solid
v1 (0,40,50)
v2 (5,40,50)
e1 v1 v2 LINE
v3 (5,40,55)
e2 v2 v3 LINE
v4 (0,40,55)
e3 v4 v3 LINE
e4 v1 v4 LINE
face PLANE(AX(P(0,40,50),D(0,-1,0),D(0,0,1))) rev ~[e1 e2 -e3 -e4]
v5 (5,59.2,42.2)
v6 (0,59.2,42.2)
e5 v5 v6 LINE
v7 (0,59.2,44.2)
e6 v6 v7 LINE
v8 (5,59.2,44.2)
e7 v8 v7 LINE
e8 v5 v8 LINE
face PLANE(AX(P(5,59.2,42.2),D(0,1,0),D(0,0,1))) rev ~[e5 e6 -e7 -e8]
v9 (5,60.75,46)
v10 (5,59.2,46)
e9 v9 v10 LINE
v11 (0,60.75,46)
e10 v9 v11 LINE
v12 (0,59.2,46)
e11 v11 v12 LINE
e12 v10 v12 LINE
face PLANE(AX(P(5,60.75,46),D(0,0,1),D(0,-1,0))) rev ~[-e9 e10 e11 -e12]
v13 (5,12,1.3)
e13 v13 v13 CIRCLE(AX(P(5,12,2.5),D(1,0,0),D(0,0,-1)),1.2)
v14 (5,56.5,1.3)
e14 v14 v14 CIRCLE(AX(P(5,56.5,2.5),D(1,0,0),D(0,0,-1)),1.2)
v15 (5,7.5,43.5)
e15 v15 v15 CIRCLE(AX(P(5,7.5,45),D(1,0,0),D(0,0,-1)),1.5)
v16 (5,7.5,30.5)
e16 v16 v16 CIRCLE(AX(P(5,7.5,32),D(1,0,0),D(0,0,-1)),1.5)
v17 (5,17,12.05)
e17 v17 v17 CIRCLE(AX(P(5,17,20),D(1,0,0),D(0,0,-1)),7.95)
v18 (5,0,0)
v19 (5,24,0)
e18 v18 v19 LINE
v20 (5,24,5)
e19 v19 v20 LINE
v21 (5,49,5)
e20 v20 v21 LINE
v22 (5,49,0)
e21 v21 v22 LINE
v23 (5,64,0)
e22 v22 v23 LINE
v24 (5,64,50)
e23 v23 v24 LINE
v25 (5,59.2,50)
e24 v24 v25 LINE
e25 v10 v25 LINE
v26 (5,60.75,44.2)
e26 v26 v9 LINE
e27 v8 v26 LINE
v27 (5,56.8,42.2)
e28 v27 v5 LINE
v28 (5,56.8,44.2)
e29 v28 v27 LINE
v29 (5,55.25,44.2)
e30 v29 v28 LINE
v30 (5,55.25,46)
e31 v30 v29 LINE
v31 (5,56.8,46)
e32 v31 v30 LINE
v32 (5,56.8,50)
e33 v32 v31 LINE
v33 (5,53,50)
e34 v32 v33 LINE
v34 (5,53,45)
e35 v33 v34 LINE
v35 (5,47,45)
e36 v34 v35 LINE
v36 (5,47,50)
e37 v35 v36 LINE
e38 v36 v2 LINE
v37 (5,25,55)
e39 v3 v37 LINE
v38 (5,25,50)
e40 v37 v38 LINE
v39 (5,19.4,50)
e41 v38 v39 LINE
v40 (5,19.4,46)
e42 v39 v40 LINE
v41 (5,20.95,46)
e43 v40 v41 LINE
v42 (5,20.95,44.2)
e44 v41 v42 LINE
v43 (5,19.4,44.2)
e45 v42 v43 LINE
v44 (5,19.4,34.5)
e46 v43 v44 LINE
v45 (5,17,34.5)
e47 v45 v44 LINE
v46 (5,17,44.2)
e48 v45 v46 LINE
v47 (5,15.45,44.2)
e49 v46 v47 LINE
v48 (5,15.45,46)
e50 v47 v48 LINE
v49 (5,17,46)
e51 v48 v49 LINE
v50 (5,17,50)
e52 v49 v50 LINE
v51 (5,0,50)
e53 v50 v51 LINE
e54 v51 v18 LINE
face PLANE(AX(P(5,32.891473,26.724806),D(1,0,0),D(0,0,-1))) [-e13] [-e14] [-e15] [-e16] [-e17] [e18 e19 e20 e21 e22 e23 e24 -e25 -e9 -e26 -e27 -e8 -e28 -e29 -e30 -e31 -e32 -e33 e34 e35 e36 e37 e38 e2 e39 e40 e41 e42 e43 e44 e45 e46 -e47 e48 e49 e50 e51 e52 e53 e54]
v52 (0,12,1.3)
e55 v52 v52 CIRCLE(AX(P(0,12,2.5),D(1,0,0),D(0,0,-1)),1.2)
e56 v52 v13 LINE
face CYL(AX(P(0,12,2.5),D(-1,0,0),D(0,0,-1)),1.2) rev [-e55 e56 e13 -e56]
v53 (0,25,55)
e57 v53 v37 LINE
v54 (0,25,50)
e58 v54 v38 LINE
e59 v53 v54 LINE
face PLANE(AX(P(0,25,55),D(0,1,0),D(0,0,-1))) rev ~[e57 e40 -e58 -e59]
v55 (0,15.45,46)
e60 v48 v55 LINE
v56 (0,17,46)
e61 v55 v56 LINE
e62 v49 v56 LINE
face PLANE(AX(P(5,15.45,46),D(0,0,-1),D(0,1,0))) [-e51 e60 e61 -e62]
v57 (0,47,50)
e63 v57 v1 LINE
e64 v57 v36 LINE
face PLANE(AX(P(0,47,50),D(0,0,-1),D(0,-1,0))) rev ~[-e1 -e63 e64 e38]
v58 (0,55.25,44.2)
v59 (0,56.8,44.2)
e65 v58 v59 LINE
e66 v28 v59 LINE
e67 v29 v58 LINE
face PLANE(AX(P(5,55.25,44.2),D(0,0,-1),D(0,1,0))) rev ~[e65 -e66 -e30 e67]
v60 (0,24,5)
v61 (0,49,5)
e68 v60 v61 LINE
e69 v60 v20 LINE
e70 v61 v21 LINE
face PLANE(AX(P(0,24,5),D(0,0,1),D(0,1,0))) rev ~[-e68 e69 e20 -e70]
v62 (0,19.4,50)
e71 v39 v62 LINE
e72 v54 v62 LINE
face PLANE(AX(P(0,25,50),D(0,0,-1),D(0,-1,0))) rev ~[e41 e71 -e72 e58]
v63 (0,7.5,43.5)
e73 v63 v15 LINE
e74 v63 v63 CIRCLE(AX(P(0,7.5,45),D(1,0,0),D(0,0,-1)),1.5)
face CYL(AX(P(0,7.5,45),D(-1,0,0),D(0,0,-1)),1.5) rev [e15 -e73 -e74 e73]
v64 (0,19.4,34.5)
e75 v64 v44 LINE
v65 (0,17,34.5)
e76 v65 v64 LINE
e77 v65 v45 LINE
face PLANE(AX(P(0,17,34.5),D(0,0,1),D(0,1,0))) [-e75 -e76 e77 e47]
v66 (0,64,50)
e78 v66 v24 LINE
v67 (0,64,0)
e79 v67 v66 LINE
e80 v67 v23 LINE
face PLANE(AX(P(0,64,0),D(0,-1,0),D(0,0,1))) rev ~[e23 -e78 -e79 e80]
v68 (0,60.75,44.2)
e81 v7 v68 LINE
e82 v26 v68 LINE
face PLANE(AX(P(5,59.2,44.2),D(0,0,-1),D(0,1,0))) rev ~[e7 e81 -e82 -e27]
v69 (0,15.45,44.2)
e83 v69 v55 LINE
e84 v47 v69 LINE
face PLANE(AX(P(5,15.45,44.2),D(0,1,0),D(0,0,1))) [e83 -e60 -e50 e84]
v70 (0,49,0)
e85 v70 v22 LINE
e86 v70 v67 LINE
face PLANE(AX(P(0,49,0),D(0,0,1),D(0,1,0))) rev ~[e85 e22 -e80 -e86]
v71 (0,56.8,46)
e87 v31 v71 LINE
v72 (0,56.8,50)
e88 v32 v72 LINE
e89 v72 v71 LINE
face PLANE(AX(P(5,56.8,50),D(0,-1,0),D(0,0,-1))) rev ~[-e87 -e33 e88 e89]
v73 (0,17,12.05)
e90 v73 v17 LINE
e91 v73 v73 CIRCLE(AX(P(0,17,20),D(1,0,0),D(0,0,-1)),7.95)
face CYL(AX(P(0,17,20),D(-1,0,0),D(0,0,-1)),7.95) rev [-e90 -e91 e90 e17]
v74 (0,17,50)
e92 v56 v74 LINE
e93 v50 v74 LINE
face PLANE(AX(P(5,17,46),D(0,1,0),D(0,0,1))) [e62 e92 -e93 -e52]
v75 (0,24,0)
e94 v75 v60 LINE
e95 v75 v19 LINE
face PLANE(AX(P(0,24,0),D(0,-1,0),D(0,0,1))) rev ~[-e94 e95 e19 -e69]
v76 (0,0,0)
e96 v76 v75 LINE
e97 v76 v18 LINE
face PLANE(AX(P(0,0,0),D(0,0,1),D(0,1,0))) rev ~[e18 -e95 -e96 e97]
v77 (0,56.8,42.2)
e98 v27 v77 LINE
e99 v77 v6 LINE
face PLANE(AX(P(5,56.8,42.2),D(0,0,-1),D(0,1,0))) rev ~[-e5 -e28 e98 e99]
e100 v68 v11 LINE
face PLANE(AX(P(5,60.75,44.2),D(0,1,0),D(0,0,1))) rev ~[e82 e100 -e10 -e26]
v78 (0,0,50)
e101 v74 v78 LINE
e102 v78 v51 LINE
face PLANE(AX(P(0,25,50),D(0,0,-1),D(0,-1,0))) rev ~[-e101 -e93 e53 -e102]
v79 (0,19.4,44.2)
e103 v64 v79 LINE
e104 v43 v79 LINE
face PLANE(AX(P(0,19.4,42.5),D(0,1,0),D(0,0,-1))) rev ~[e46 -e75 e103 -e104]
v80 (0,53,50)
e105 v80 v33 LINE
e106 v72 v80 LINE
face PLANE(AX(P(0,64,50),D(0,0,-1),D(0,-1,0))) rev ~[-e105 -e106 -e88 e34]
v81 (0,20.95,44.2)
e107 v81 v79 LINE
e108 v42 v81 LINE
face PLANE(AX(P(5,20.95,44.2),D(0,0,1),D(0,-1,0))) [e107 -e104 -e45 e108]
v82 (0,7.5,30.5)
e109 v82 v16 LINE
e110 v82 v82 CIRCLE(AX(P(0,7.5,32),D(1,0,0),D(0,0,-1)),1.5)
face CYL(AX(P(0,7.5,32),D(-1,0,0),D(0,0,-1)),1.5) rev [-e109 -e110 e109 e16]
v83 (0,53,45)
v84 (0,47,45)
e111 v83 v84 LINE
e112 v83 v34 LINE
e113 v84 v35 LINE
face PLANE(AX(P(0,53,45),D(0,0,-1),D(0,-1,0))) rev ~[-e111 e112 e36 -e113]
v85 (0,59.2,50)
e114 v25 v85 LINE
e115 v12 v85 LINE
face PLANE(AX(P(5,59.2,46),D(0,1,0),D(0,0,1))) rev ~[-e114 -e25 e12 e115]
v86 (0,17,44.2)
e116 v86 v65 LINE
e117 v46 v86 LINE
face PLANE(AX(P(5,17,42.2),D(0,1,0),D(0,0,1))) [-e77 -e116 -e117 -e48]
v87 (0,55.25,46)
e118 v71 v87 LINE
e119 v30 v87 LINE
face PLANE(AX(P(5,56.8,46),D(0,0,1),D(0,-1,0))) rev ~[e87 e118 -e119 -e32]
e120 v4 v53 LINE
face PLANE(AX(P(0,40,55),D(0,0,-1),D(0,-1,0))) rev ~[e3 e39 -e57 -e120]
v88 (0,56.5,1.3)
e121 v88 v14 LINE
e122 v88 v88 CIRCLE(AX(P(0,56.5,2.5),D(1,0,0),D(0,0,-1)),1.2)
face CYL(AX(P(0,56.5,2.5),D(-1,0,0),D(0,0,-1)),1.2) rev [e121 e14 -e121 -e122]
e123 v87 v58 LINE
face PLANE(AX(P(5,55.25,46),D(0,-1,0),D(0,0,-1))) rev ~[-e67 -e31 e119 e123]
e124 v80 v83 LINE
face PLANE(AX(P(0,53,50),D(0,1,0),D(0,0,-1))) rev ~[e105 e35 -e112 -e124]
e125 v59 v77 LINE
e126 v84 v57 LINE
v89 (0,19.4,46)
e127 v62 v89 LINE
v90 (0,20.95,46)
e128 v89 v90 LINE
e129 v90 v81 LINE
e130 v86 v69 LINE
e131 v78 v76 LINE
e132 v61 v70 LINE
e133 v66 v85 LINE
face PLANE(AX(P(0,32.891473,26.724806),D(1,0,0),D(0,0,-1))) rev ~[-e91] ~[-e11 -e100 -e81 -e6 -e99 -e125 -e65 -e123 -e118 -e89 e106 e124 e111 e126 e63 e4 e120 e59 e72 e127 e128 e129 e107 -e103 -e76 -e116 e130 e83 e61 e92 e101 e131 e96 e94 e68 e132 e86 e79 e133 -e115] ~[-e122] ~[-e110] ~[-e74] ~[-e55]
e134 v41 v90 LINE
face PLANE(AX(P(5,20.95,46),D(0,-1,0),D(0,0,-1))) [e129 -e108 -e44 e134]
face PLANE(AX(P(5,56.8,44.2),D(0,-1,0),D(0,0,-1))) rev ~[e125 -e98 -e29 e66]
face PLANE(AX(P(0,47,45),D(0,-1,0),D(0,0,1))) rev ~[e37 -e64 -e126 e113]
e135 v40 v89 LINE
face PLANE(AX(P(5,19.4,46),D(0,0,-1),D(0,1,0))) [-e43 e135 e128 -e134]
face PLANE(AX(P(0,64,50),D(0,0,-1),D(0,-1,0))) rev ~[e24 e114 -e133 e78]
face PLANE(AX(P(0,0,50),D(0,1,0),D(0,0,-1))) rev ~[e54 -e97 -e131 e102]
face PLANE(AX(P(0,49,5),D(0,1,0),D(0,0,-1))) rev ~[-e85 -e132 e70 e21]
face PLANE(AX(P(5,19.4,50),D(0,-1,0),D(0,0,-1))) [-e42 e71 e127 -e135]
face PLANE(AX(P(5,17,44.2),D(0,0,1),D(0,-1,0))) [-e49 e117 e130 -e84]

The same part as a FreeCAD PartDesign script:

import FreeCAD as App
import Part
import Sketcher
from FreeCAD import Vector
Q = App.Units.Quantity

doc = App.newDocument("Part")
body = doc.addObject("PartDesign::Body", "Body")

# Sketch on YZ plane
sketch1 = body.newObject("Sketcher::SketchObject", "Sketch")
sketch1.AttachmentSupport = (doc.getObject("YZ_Plane"), [""])
sketch1.MapMode = "FlatFace"
sketch1.addGeometry([
    Part.LineSegment(Vector(0, 50, 0), Vector(0, 0, 0)),  # 0
    Part.LineSegment(Vector(0, 0, 0), Vector(24, 0, 0)),  # 1
    Part.LineSegment(Vector(24, 0, 0), Vector(24, 5, 0)),  # 2
    Part.LineSegment(Vector(24, 5, 0), Vector(49, 5, 0)),  # 3
    Part.LineSegment(Vector(49, 5, 0), Vector(49, 0, 0)),  # 4
    Part.LineSegment(Vector(49, 0, 0), Vector(64, 0, 0)),  # 5
    Part.LineSegment(Vector(64, 0, 0), Vector(64, 50, 0)),  # 6
    Part.LineSegment(Vector(64, 50, 0), Vector(53, 50, 0)),  # 7
    Part.LineSegment(Vector(53, 50, 0), Vector(53, 45, 0)),  # 8
    Part.LineSegment(Vector(53, 45, 0), Vector(47, 45, 0)),  # 9
    Part.LineSegment(Vector(47, 45, 0), Vector(47, 50, 0)),  # 10
    Part.LineSegment(Vector(47, 50, 0), Vector(40, 50, 0)),  # 11
    Part.LineSegment(Vector(40, 50, 0), Vector(40, 55, 0)),  # 12
    Part.LineSegment(Vector(40, 55, 0), Vector(25, 55, 0)),  # 13
    Part.LineSegment(Vector(25, 55, 0), Vector(25, 50, 0)),  # 14
    Part.LineSegment(Vector(25, 50, 0), Vector(0, 50, 0)),  # 15
    Part.Circle(Vector(7.5, 45, 0), Vector(0, 0, 1), 1.5),  # 16
    Part.LineSegment(Vector(17, 34.5, 0), Vector(17, 42.5, 0)),  # 17
    Part.LineSegment(Vector(17, 42.5, 0), Vector(19.4, 42.5, 0)),  # 18
    Part.LineSegment(Vector(19.4, 42.5, 0), Vector(19.4, 34.5, 0)),  # 19
    Part.LineSegment(Vector(19.4, 34.5, 0), Vector(17, 34.5, 0)),  # 20
    Part.Circle(Vector(7.5, 32, 0), Vector(0, 0, 1), 1.5),  # 21
    Part.Circle(Vector(17, 20, 0), Vector(0, 0, 1), 8),  # 22
    Part.Circle(Vector(12, 2.5, 0), Vector(0, 0, 1), 1.2),  # 23
    Part.Circle(Vector(56.5, 2.5, 0), Vector(0, 0, 1), 1.2),  # 24
], False)
sketch1.addConstraint([
    Sketcher.Constraint("Coincident", 0, 2, 1, 1),
    Sketcher.Constraint("Coincident", 1, 2, 2, 1),
    Sketcher.Constraint("Coincident", 2, 2, 3, 1),
    Sketcher.Constraint("Coincident", 3, 2, 4, 1),
    Sketcher.Constraint("Coincident", 4, 2, 5, 1),
    Sketcher.Constraint("Coincident", 5, 2, 6, 1),
    Sketcher.Constraint("Coincident", 6, 2, 7, 1),
    Sketcher.Constraint("Coincident", 7, 2, 8, 1),
    Sketcher.Constraint("Coincident", 8, 2, 9, 1),
    Sketcher.Constraint("Coincident", 9, 2, 10, 1),
    Sketcher.Constraint("Coincident", 10, 2, 11, 1),
    Sketcher.Constraint("Coincident", 11, 2, 12, 1),
    Sketcher.Constraint("Coincident", 12, 2, 13, 1),
    Sketcher.Constraint("Coincident", 13, 2, 14, 1),
    Sketcher.Constraint("Coincident", 14, 2, 15, 1),
    Sketcher.Constraint("Coincident", 15, 2, 0, 1),
    Sketcher.Constraint("Coincident", 17, 2, 18, 1),
    Sketcher.Constraint("Coincident", 18, 2, 19, 1),
    Sketcher.Constraint("Coincident", 19, 2, 20, 1),
    Sketcher.Constraint("Coincident", 20, 2, 17, 1),
    Sketcher.Constraint("Vertical", 0),
    Sketcher.Constraint("Horizontal", 1),
    Sketcher.Constraint("Vertical", 2),
    Sketcher.Constraint("Horizontal", 3),
    Sketcher.Constraint("Vertical", 4),
    Sketcher.Constraint("Horizontal", 5),
    Sketcher.Constraint("Vertical", 6),
    Sketcher.Constraint("Horizontal", 7),
    Sketcher.Constraint("Vertical", 8),
    Sketcher.Constraint("Horizontal", 9),
    Sketcher.Constraint("Vertical", 10),
    Sketcher.Constraint("Horizontal", 11),
    Sketcher.Constraint("Vertical", 12),
    Sketcher.Constraint("Horizontal", 13),
    Sketcher.Constraint("Vertical", 14),
    Sketcher.Constraint("Horizontal", 15),
    Sketcher.Constraint("Vertical", 17),
    Sketcher.Constraint("Horizontal", 18),
    Sketcher.Constraint("Vertical", 19),
    Sketcher.Constraint("Horizontal", 20),
    Sketcher.Constraint("Coincident", 0, 2, -1, 1),
    Sketcher.Constraint("Equal", 16, 21),
    Sketcher.Constraint("Equal", 23, 24),
    Sketcher.Constraint("PointOnObject", 4, 2, -1),
    Sketcher.Constraint("Horizontal", 23, 3, 24, 3),
    Sketcher.Constraint("Horizontal", 16, 3, 8, 2),
    Sketcher.Constraint("Horizontal", 7, 2, 10, 2),
    Sketcher.Constraint("Horizontal", 11, 2, 14, 2),
    Sketcher.Constraint("Vertical", 16, 3, 21, 3),
    Sketcher.Constraint("Vertical", 22, 3, 17, 2),
    Sketcher.Constraint("Equal", 5, 13),
    Sketcher.Constraint("Equal", 3, 15),
    Sketcher.Constraint("Equal", 4, 8),
    Sketcher.Constraint("Equal", 10, 12),
    Sketcher.Constraint("Diameter", 16, Q("3 mm")),
    Sketcher.Constraint("Diameter", 22, Q("15.9 mm")),
    Sketcher.Constraint("Diameter", 23, Q("2.4 mm")),
    Sketcher.Constraint("DistanceX", 1, 1, 1, 2, Q("24 mm")),
    Sketcher.Constraint("DistanceX", 3, 1, 3, 2, Q("25 mm")),
    Sketcher.Constraint("DistanceX", 5, 1, 5, 2, Q("15 mm")),
    Sketcher.Constraint("DistanceX", 7, 2, 7, 1, Q("11 mm")),
    Sketcher.Constraint("DistanceX", 9, 2, 9, 1, Q("6 mm")),
    Sketcher.Constraint("DistanceY", 0, 2, 0, 1, Q("50 mm")),
    Sketcher.Constraint("DistanceY", 2, 1, 2, 2, Q("5 mm")),
    Sketcher.Constraint("DistanceY", 17, 1, 17, 2, Q("8 mm")),
    Sketcher.Constraint("DistanceX", 18, 1, 18, 2, Q("2.4 mm")),
    Sketcher.Constraint("DistanceY", -1, 1, 21, 3, Q("32 mm")),
    Sketcher.Constraint("DistanceX", -1, 1, 22, 3, Q("17 mm")),
    Sketcher.Constraint("DistanceY", -1, 1, 22, 3, Q("20 mm")),
    Sketcher.Constraint("DistanceX", -1, 1, 23, 3, Q("12 mm")),
    Sketcher.Constraint("DistanceX", 21, 3, 24, 3, Q("49 mm")),
    Sketcher.Constraint("DistanceX", -1, 1, 16, 3, Q("7.5 mm")),
    Sketcher.Constraint("DistanceY", -1, 1, 23, 3, Q("2.5 mm")),
    Sketcher.Constraint("DistanceY", -1, 1, 17, 2, Q("42.5 mm")),
])
pad1 = body.newObject("PartDesign::Pad", "Pad")
pad1.Profile = sketch1
pad1.Length = 5

# Sketch on YZ plane
sketch2 = body.newObject("Sketcher::SketchObject", "Sketch001")
sketch2.AttachmentSupport = (doc.getObject("YZ_Plane"), [""])
sketch2.MapMode = "FlatFace"
sketch2.AttachmentOffset = App.Placement(Vector(0, 0, 5), App.Rotation())
sketch2.addGeometry([
    Part.LineSegment(Vector(56.8, 50, 0), Vector(56.8, 46, 0)),  # 0
    Part.LineSegment(Vector(56.8, 46, 0), Vector(55.2, 46, 0)),  # 1
    Part.LineSegment(Vector(55.2, 46, 0), Vector(55.2, 44.2, 0)),  # 2
    Part.LineSegment(Vector(55.2, 44.2, 0), Vector(56.8, 44.2, 0)),  # 3
    Part.LineSegment(Vector(56.8, 44.2, 0), Vector(56.8, 42.2, 0)),  # 4
    Part.LineSegment(Vector(56.8, 42.2, 0), Vector(59.2, 42.2, 0)),  # 5
    Part.LineSegment(Vector(59.2, 42.2, 0), Vector(59.2, 44.2, 0)),  # 6
    Part.LineSegment(Vector(59.2, 44.2, 0), Vector(60.8, 44.2, 0)),  # 7
    Part.LineSegment(Vector(60.8, 44.2, 0), Vector(60.8, 46, 0)),  # 8
    Part.LineSegment(Vector(60.8, 46, 0), Vector(59.2, 46, 0)),  # 9
    Part.LineSegment(Vector(59.2, 46, 0), Vector(59.2, 50, 0)),  # 10
    Part.LineSegment(Vector(59.2, 50, 0), Vector(56.8, 50, 0)),  # 11
    Part.LineSegment(Vector(19.4, 42.2, 0), Vector(19.4, 44.2, 0)),  # 12
    Part.LineSegment(Vector(19.4, 44.2, 0), Vector(20.9, 44.2, 0)),  # 13
    Part.LineSegment(Vector(20.9, 44.2, 0), Vector(20.9, 46, 0)),  # 14
    Part.LineSegment(Vector(20.9, 46, 0), Vector(19.4, 46, 0)),  # 15
    Part.LineSegment(Vector(19.4, 46, 0), Vector(19.4, 50, 0)),  # 16
    Part.LineSegment(Vector(19.4, 50, 0), Vector(17, 50, 0)),  # 17
    Part.LineSegment(Vector(17, 50, 0), Vector(17, 46, 0)),  # 18
    Part.LineSegment(Vector(17, 46, 0), Vector(15.4, 46, 0)),  # 19
    Part.LineSegment(Vector(15.4, 46, 0), Vector(15.4, 44.2, 0)),  # 20
    Part.LineSegment(Vector(15.4, 44.2, 0), Vector(17, 44.2, 0)),  # 21
    Part.LineSegment(Vector(17, 44.2, 0), Vector(17, 42.2, 0)),  # 22
    Part.LineSegment(Vector(17, 42.2, 0), Vector(19.4, 42.2, 0)),  # 23
], False)
sketch2.addConstraint([
    Sketcher.Constraint("Coincident", 0, 2, 1, 1),
    Sketcher.Constraint("Coincident", 1, 2, 2, 1),
    Sketcher.Constraint("Coincident", 2, 2, 3, 1),
    Sketcher.Constraint("Coincident", 3, 2, 4, 1),
    Sketcher.Constraint("Coincident", 4, 2, 5, 1),
    Sketcher.Constraint("Coincident", 5, 2, 6, 1),
    Sketcher.Constraint("Coincident", 6, 2, 7, 1),
    Sketcher.Constraint("Coincident", 7, 2, 8, 1),
    Sketcher.Constraint("Coincident", 8, 2, 9, 1),
    Sketcher.Constraint("Coincident", 9, 2, 10, 1),
    Sketcher.Constraint("Coincident", 10, 2, 11, 1),
    Sketcher.Constraint("Coincident", 11, 2, 0, 1),
    Sketcher.Constraint("Coincident", 12, 2, 13, 1),
    Sketcher.Constraint("Coincident", 13, 2, 14, 1),
    Sketcher.Constraint("Coincident", 14, 2, 15, 1),
    Sketcher.Constraint("Coincident", 15, 2, 16, 1),
    Sketcher.Constraint("Coincident", 16, 2, 17, 1),
    Sketcher.Constraint("Coincident", 17, 2, 18, 1),
    Sketcher.Constraint("Coincident", 18, 2, 19, 1),
    Sketcher.Constraint("Coincident", 19, 2, 20, 1),
    Sketcher.Constraint("Coincident", 20, 2, 21, 1),
    Sketcher.Constraint("Coincident", 21, 2, 22, 1),
    Sketcher.Constraint("Coincident", 22, 2, 23, 1),
    Sketcher.Constraint("Coincident", 23, 2, 12, 1),
    Sketcher.Constraint("Vertical", 0),
    Sketcher.Constraint("Horizontal", 1),
    Sketcher.Constraint("Vertical", 2),
    Sketcher.Constraint("Horizontal", 3),
    Sketcher.Constraint("Vertical", 4),
    Sketcher.Constraint("Horizontal", 5),
    Sketcher.Constraint("Vertical", 6),
    Sketcher.Constraint("Horizontal", 7),
    Sketcher.Constraint("Vertical", 8),
    Sketcher.Constraint("Horizontal", 9),
    Sketcher.Constraint("Vertical", 10),
    Sketcher.Constraint("Horizontal", 11),
    Sketcher.Constraint("Vertical", 12),
    Sketcher.Constraint("Horizontal", 13),
    Sketcher.Constraint("Vertical", 14),
    Sketcher.Constraint("Horizontal", 15),
    Sketcher.Constraint("Vertical", 16),
    Sketcher.Constraint("Horizontal", 17),
    Sketcher.Constraint("Vertical", 18),
    Sketcher.Constraint("Horizontal", 19),
    Sketcher.Constraint("Vertical", 20),
    Sketcher.Constraint("Horizontal", 21),
    Sketcher.Constraint("Vertical", 22),
    Sketcher.Constraint("Horizontal", 23),
    Sketcher.Constraint("Horizontal", 3, 2, 6, 2),
    Sketcher.Constraint("Horizontal", 1, 2, 8, 2),
    Sketcher.Constraint("Horizontal", 7, 2, 12, 2),
    Sketcher.Constraint("Horizontal", 9, 2, 14, 2),
    Sketcher.Constraint("Horizontal", 11, 2, 16, 2),
    Sketcher.Constraint("Horizontal", 15, 2, 18, 2),
    Sketcher.Constraint("Horizontal", 13, 2, 20, 2),
    Sketcher.Constraint("Horizontal", 5, 2, 22, 2),
    Sketcher.Constraint("Vertical", 0, 2, 3, 2),
    Sketcher.Constraint("Vertical", 6, 2, 9, 2),
    Sketcher.Constraint("Vertical", 12, 2, 15, 2),
    Sketcher.Constraint("Vertical", 18, 2, 21, 2),
    Sketcher.Constraint("Equal", 3, 7),
    Sketcher.Constraint("Equal", 9, 13),
    Sketcher.Constraint("Equal", 11, 17),
    Sketcher.Constraint("Equal", 15, 19),
    Sketcher.Constraint("DistanceY", 0, 2, 0, 1, Q("4 mm")),
    Sketcher.Constraint("DistanceY", 4, 2, 4, 1, Q("2 mm")),
    Sketcher.Constraint("DistanceX", 5, 1, 5, 2, Q("2.4 mm")),
    Sketcher.Constraint("DistanceY", 2, 2, 2, 1, Q("1.8 mm")),
    Sketcher.Constraint("DistanceY", -1, 1, 0, 2, Q("46 mm")),
    Sketcher.Constraint("DistanceX", -1, 1, 17, 2, Q("17 mm")),
    Sketcher.Constraint("DistanceX", 1, 2, 1, 1, Q("1.55 mm")),
    Sketcher.Constraint("DistanceX", -1, 1, 0, 2, Q("56.8 mm")),
])
pocket1 = body.newObject("PartDesign::Pocket", "Pocket")
pocket1.Profile = sketch2
pocket1.Type = "ThroughAll"

doc.recompute()
